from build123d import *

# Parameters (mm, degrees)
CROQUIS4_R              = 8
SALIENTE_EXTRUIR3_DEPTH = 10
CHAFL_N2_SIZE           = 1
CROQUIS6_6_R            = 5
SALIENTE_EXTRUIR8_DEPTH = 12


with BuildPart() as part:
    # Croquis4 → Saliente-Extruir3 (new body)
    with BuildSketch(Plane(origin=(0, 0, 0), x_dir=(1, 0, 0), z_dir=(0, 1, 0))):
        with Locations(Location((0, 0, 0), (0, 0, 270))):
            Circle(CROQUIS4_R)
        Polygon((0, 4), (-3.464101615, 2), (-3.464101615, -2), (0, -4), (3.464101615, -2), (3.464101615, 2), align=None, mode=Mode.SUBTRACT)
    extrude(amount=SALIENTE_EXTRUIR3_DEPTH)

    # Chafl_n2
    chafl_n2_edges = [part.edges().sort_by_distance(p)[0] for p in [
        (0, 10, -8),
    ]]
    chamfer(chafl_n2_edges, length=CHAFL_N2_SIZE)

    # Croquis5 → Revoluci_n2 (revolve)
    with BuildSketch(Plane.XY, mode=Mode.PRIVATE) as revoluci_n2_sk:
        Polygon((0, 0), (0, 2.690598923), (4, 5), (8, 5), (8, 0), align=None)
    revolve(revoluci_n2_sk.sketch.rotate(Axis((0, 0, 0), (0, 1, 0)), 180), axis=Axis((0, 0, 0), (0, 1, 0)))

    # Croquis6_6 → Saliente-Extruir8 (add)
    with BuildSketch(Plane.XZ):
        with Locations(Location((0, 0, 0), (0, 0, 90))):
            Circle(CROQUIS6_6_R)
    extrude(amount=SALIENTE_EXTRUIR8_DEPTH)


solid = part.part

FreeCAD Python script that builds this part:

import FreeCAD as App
import Part
import Sketcher

V = App.Vector
Q = App.Units.Quantity


def edges_at(feature, points):
    """Names of the edges that pass closest to the given points."""
    edges = feature.Shape.Edges
    near = lambda p: min(range(len(edges)), key=lambda i: edges[i].distToShape(Part.Vertex(*p))[0])
    return sorted({f"Edge{near(p) + 1}" for p in points})

doc = App.newDocument("Part")
params = doc.addObject("Spreadsheet::Sheet", "Params")
for row, (alias, value) in enumerate([
    ("sketch1_diameter", "16 mm"),
    ("sketch1_height", "4 mm"),
    ("sketch1_length", "4 mm"),
    ("pad1_length", "10 mm"),
    ("chamfer_size", "1 mm"),
    ("sketch2_width", "8 mm"),
    ("sketch2_width2", "4 mm"),
    ("sketch2_height", "5 mm"),
    ("revolution_angle", "360 deg"),
    ("sketch3_diameter", "10 mm"),
    ("pad2_length", "12 mm"),
], start=1):
    params.set(f"A{row}", alias)
    params.set(f"B{row}", "=" + value)
    params.setAlias(f"B{row}", alias)

body = doc.addObject("PartDesign::Body", "Body")

# Sketch on XZ plane
sketch1 = doc.addObject("Sketcher::SketchObject", "Sketch")
body.addObject(sketch1)
sketch1.AttachmentSupport = (doc.XZ_Plane, [""])
sketch1.MapMode = "FlatFace"
sketch1.addGeometry(Part.Circle(V(0, 0, 0), V(0, 0, 1), 8), False)
sketch1.addGeometry(Part.LineSegment(V(-3.5, -2, 0), V(0, -4, 0)), False)
sketch1.addGeometry(Part.LineSegment(V(0, -4, 0), V(3.5, -2, 0)), False)
sketch1.addGeometry(Part.LineSegment(V(3.5, -2, 0), V(3.5, 2, 0)), False)
sketch1.addGeometry(Part.LineSegment(V(3.5, 2, 0), V(0, 4, 0)), False)
sketch1.addGeometry(Part.LineSegment(V(0, 4, 0), V(-3.5, 2, 0)), False)
sketch1.addGeometry(Part.LineSegment(V(-3.5, 2, 0), V(-3.5, -2, 0)), False)
sketch1.addConstraint(Sketcher.Constraint("Coincident", 1, 2, 2, 1))
sketch1.addConstraint(Sketcher.Constraint("Coincident", 2, 2, 3, 1))
sketch1.addConstraint(Sketcher.Constraint("Coincident", 3, 2, 4, 1))
sketch1.addConstraint(Sketcher.Constraint("Coincident", 4, 2, 5, 1))
sketch1.addConstraint(Sketcher.Constraint("Coincident", 5, 2, 6, 1))
sketch1.addConstraint(Sketcher.Constraint("Coincident", 6, 2, 1, 1))
sketch1.addConstraint(Sketcher.Constraint("Vertical", 3))
sketch1.addConstraint(Sketcher.Constraint("Vertical", 6))
sketch1.addConstraint(Sketcher.Constraint("Coincident", 0, 3, -1, 1))
sketch1.addConstraint(Sketcher.Constraint("Symmetric", 1, 2, 4, 2, -1, 1))
sketch1.addConstraint(Sketcher.Constraint("Symmetric", 2, 2, 5, 2, -1, 1))
sketch1.addConstraint(Sketcher.Constraint("PointOnObject", 1, 2, -2))
sketch1.addConstraint(Sketcher.Constraint("Parallel", 1, 4))
sketch1.addConstraint(Sketcher.Constraint("Horizontal", 3, 2, 5, 2))
sketch1.addConstraint(Sketcher.Constraint("Diameter", 0, Q("16 mm")))
sketch1.addConstraint(Sketcher.Constraint("DistanceY", 3, 1, 3, 2, Q("4 mm")))
sketch1.addConstraint(Sketcher.Constraint("Angle", 1, Q("-30 deg")))
sketch1.addConstraint(Sketcher.Constraint("Distance", 1, Q("4 mm")))
sketch1.setExpression("Constraints[14]", "Params.sketch1_diameter")
sketch1.setExpression("Constraints[15]", "Params.sketch1_height")
sketch1.setExpression("Constraints[17]", "Params.sketch1_length")
pad1 = doc.addObject("PartDesign::Pad", "Pad")
body.addObject(pad1)
pad1.Profile = sketch1
pad1.setExpression("Length", "Params.pad1_length")
pad1.Reversed = True
doc.recompute()

chamfer = doc.addObject("PartDesign::Chamfer", "Chamfer")
body.addObject(chamfer)
chamfer.Base = (pad1, edges_at(pad1, [(0, 10, -8)]))
chamfer.setExpression("Size", "Params.chamfer_size")

# Sketch on XY plane
sketch2 = doc.addObject("Sketcher::SketchObject", "Sketch001")
body.addObject(sketch2)
sketch2.AttachmentSupport = (doc.XY_Plane, [""])
sketch2.MapMode = "FlatFace"
sketch2.addGeometry(Part.LineSegment(V(0, 2.7, 0), V(0, 0, 0)), False)
sketch2.addGeometry(Part.LineSegment(V(0, 0, 0), V(8, 0, 0)), False)
sketch2.addGeometry(Part.LineSegment(V(8, 0, 0), V(8, 5, 0)), False)
sketch2.addGeometry(Part.LineSegment(V(8, 5, 0), V(4, 5, 0)), False)
sketch2.addGeometry(Part.LineSegment(V(4, 5, 0), V(0, 2.7, 0)), False)
sketch2.addConstraint(Sketcher.Constraint("Coincident", 0, 2, 1, 1))
sketch2.addConstraint(Sketcher.Constraint("Coincident", 1, 2, 2, 1))
sketch2.addConstraint(Sketcher.Constraint("Coincident", 2, 2, 3, 1))
sketch2.addConstraint(Sketcher.Constraint("Coincident", 3, 2, 4, 1))
sketch2.addConstraint(Sketcher.Constraint("Coincident", 4, 2, 0, 1))
sketch2.addConstraint(Sketcher.Constraint("Vertical", 0))
sketch2.addConstraint(Sketcher.Constraint("Horizontal", 1))
sketch2.addConstraint(Sketcher.Constraint("Vertical", 2))
sketch2.addConstraint(Sketcher.Constraint("Horizontal", 3))
sketch2.addConstraint(Sketcher.Constraint("Coincident", 0, 2, -1, 1))
sketch2.addConstraint(Sketcher.Constraint("DistanceX", 1, 1, 1, 2, Q("8 mm")))
sketch2.addConstraint(Sketcher.Constraint("DistanceX", 3, 2, 3, 1, Q("4 mm")))
sketch2.addConstraint(Sketcher.Constraint("DistanceY", 2, 1, 2, 2, Q("5 mm")))
sketch2.addConstraint(Sketcher.Constraint("Angle", 4, Q("-150 deg")))
sketch2.setExpression("Constraints[10]", "Params.sketch2_width")
sketch2.setExpression("Constraints[11]", "Params.sketch2_width2")
sketch2.setExpression("Constraints[12]", "Params.sketch2_height")
revolution = doc.addObject("PartDesign::Revolution", "Revolution")
body.addObject(revolution)
revolution.Profile = sketch2
revolution.ReferenceAxis = (sketch2, ["V_Axis"])
revolution.setExpression("Angle", "Params.revolution_angle")

# Sketch on XZ plane
sketch3 = doc.addObject("Sketcher::SketchObject", "Sketch002")
body.addObject(sketch3)
sketch3.AttachmentSupport = (doc.XZ_Plane, [""])
sketch3.MapMode = "FlatFace"
sketch3.addGeometry(Part.Circle(V(0, 0, 0), V(0, 0, 1), 5), False)
sketch3.addConstraint(Sketcher.Constraint("Coincident", 0, 3, -1, 1))
sketch3.addConstraint(Sketcher.Constraint("Diameter", 0, Q("10 mm")))
sketch3.setExpression("Constraints[1]", "Params.sketch3_diameter")
pad2 = doc.addObject("PartDesign::Pad", "Pad001")
body.addObject(pad2)
pad2.Profile = sketch3
pad2.setExpression("Length", "Params.pad2_length")

doc.recompute()
